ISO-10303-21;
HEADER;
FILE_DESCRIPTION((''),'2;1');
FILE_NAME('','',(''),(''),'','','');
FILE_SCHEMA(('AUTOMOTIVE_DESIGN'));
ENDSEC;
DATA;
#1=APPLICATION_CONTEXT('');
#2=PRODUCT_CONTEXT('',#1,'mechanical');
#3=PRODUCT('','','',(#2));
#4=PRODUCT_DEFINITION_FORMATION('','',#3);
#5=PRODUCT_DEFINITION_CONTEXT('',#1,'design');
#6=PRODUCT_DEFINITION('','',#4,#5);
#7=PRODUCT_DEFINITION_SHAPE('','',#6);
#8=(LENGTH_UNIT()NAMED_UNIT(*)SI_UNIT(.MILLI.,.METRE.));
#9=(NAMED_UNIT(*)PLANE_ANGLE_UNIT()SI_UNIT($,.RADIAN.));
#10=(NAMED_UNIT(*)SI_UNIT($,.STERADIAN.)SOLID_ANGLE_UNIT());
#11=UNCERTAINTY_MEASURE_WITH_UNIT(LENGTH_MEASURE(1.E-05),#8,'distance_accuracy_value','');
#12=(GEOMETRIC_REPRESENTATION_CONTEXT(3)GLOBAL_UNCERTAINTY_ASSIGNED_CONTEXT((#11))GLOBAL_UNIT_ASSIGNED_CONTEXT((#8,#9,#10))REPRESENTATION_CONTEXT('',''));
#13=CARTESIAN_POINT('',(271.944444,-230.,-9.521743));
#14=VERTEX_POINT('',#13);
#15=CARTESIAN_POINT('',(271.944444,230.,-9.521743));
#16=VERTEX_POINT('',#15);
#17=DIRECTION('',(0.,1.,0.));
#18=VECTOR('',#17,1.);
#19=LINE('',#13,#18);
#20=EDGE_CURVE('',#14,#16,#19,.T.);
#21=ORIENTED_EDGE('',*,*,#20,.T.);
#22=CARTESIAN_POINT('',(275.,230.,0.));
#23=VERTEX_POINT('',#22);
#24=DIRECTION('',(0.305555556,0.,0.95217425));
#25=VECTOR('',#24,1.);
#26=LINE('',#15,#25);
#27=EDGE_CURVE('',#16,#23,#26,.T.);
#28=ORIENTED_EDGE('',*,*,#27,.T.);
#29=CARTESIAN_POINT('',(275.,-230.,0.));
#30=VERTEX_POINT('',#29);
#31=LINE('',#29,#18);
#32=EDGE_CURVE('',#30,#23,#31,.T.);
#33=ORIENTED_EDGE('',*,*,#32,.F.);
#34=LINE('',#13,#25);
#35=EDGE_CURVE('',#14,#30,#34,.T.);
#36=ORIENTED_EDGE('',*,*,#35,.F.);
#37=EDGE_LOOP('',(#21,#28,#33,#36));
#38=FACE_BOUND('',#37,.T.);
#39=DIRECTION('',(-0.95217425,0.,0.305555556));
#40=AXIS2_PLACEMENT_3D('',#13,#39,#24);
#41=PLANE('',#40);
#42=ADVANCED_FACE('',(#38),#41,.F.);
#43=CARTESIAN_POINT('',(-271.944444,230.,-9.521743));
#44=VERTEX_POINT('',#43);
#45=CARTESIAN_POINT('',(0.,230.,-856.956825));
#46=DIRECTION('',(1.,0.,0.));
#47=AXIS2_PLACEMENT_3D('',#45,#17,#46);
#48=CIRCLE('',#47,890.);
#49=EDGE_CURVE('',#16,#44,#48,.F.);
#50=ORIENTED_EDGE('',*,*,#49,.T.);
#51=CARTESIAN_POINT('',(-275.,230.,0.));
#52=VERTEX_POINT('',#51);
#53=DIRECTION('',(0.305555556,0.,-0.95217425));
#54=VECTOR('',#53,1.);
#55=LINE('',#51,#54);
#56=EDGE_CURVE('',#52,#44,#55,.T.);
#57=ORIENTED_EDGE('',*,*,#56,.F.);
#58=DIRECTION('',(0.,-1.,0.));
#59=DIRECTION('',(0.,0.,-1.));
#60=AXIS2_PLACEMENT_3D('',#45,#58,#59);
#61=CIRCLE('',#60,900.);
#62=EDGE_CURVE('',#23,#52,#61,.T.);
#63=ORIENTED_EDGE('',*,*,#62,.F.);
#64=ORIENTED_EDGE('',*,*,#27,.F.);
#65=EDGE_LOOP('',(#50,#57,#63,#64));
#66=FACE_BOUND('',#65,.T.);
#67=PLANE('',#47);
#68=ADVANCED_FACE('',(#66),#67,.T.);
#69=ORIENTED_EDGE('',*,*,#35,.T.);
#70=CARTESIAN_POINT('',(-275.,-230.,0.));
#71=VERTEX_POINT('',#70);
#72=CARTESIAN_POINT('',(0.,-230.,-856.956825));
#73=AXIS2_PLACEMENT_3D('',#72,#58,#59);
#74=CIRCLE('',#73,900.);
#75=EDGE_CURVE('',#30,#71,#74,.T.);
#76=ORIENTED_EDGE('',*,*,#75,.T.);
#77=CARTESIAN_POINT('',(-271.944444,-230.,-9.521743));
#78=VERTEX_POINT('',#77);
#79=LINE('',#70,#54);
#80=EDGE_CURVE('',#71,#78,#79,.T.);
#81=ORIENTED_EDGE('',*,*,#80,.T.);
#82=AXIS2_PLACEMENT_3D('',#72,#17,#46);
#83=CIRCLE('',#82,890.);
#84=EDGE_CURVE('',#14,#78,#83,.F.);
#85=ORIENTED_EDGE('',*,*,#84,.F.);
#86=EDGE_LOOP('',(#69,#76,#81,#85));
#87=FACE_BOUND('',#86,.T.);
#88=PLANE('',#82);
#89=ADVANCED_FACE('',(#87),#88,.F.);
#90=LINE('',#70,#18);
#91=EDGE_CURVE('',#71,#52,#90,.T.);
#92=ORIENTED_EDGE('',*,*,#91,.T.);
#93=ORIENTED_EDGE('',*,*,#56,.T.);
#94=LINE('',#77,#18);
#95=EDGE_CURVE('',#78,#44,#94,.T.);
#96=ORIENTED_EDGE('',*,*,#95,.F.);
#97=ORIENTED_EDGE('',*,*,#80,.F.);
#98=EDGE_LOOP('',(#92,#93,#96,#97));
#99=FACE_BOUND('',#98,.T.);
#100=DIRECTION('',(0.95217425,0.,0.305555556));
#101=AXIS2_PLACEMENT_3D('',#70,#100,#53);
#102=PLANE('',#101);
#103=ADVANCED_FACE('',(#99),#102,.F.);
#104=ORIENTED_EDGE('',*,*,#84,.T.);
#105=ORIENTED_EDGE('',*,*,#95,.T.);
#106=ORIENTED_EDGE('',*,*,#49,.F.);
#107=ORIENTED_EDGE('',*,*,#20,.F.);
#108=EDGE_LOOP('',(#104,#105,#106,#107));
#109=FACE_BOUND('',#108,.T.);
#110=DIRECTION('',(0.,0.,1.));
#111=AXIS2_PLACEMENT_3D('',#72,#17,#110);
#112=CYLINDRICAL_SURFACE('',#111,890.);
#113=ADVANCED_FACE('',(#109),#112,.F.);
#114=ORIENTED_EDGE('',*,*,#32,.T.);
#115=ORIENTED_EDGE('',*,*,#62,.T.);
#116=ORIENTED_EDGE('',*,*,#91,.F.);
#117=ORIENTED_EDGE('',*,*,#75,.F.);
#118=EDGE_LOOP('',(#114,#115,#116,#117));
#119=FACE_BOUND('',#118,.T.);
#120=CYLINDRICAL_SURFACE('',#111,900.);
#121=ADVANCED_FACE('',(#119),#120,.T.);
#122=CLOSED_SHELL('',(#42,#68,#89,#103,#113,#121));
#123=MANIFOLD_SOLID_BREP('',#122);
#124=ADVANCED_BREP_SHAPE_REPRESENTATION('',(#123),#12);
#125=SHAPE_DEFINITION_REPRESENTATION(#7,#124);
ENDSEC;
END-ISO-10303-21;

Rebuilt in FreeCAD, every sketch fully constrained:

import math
import FreeCAD as App
import Part
import Sketcher
Q = App.Units.Quantity

doc = App.newDocument("Part")
body = doc.addObject("PartDesign::Body", "Body")

# Sketch on XZ plane
sketch1 = doc.addObject("Sketcher::SketchObject", "Sketch")
body.addObject(sketch1)
sketch1.AttachmentSupport = (doc.XZ_Plane, [""])
sketch1.MapMode = "FlatFace"
sketch1.addGeometry(Part.ArcOfCircle(Part.Circle(App.Vector(0, -857, 0), App.Vector(0, 0, 1), 900), math.radians(72), math.radians(108)), False)
sketch1.addGeometry(Part.LineSegment(App.Vector(275, 0, 0), App.Vector(272, -10, 0)), False)
sketch1.addGeometry(Part.ArcOfCircle(Part.Circle(App.Vector(0, -857, 0), App.Vector(0, 0, 1), 890), math.radians(72), math.radians(108)), False)
sketch1.addGeometry(Part.LineSegment(App.Vector(-272, -10, 0), App.Vector(-275, 0, 0)), False)
sketch1.addConstraint(Sketcher.Constraint("Coincident", 0, 1, 1, 1))
sketch1.addConstraint(Sketcher.Constraint("Coincident", 1, 2, 2, 1))
sketch1.addConstraint(Sketcher.Constraint("Coincident", 2, 2, 3, 1))
sketch1.addConstraint(Sketcher.Constraint("Coincident", 3, 2, 0, 2))
sketch1.addConstraint(Sketcher.Constraint("Coincident", 2, 3, 0, 3))
sketch1.addConstraint(Sketcher.Constraint("PointOnObject", 0, 3, -2))
sketch1.addConstraint(Sketcher.Constraint("PointOnObject", 0, 1, -1))
sketch1.addConstraint(Sketcher.Constraint("PointOnObject", 3, 2, -1))
sketch1.addConstraint(Sketcher.Constraint("Radius", 0, 900.0))
sketch1.addConstraint(Sketcher.Constraint("Radius", 2, 890.0))
sketch1.addConstraint(Sketcher.Constraint("DistanceX", 3, 2, -1, 1, 275.0))
sketch1.addConstraint(Sketcher.Constraint("DistanceX", -1, 1, 1, 2, 271.944444))
sketch1.addConstraint(Sketcher.Constraint("Angle", 3, Q("107.791591 deg")))
pad1 = doc.addObject("PartDesign::Pad", "Pad")
body.addObject(pad1)
pad1.Profile = sketch1
pad1.Type = "TwoLengths"
pad1.Length = 230
pad1.Length2 = 230
pad1.Reversed = True

doc.recompute()
